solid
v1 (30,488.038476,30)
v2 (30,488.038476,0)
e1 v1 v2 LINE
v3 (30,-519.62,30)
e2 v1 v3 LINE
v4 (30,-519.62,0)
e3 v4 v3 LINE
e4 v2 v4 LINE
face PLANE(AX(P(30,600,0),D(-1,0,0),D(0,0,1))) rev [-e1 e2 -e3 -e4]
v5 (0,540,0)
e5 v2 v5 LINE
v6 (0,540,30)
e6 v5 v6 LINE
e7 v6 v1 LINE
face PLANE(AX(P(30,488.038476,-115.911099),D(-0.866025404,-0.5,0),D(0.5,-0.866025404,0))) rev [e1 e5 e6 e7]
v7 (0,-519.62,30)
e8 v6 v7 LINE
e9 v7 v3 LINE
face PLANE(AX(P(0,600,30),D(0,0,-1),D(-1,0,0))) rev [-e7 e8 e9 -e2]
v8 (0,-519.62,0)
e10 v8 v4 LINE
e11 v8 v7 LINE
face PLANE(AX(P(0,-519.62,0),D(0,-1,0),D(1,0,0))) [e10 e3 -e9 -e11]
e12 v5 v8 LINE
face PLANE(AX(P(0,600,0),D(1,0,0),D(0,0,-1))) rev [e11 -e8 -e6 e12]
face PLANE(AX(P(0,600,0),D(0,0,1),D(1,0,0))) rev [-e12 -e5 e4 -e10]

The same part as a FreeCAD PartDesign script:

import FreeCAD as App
import Part
import Sketcher

V = App.Vector
Q = App.Units.Quantity

doc = App.newDocument("Part")
params = doc.addObject("Spreadsheet::Sheet", "Params")
for row, (alias, value) in enumerate([
    ("sketch1_width", "30 mm"),
    ("pad1_length", "600 mm"),
    ("sketch2_width", "30 mm"),
    ("sketch3_width", "30 mm"),
    ("sketch4_width", "30 mm"),
    ("sketch4_height", "1119.62 mm"),
    ("pad2_length", "30 mm"),
    ("sketch5_height", "60 mm"),
    ("pocket3_length", "30 mm"),
], start=1):
    params.set(f"A{row}", alias)
    params.set(f"B{row}", "=" + value)
    params.setAlias(f"B{row}", alias)

body = doc.addObject("PartDesign::Body", "Body")

# Sketch on XZ plane
sketch1 = doc.addObject("Sketcher::SketchObject", "Sketch")
body.addObject(sketch1)
sketch1.AttachmentSupport = (doc.XZ_Plane, [""])
sketch1.MapMode = "FlatFace"
sketch1.addGeometry([
    Part.LineSegment(V(0, 0, 0), V(0, 30, 0)),
    Part.LineSegment(V(0, 30, 0), V(30, 30, 0)),
    Part.LineSegment(V(30, 30, 0), V(30, 0, 0)),
    Part.LineSegment(V(30, 0, 0), V(0, 0, 0)),
], False)
sketch1.addConstraint([
    Sketcher.Constraint("Coincident", 0, 2, 1, 1),
    Sketcher.Constraint("Coincident", 1, 2, 2, 1),
    Sketcher.Constraint("Coincident", 2, 2, 3, 1),
    Sketcher.Constraint("Coincident", 3, 2, 0, 1),
    Sketcher.Constraint("Vertical", 0),
    Sketcher.Constraint("Horizontal", 1),
    Sketcher.Constraint("Vertical", 2),
    Sketcher.Constraint("Horizontal", 3),
    Sketcher.Constraint("Coincident", 3, 2, -1, 1),
    Sketcher.Constraint("Equal", 3, 0),
    Sketcher.Constraint("DistanceX", 1, 1, 1, 2, 30.0),
])
sketch1.setExpression("Constraints[10]", "Params.sketch1_width")
pad1 = doc.addObject("PartDesign::Pad", "Pad")
body.addObject(pad1)
pad1.Profile = sketch1
pad1.setExpression("Length", "Params.pad1_length")
pad1.Reversed = True

# Sketch on XY plane
sketch2 = doc.addObject("Sketcher::SketchObject", "Sketch001")
body.addObject(sketch2)
sketch2.AttachmentSupport = (doc.XY_Plane, [""])
sketch2.MapMode = "FlatFace"
sketch2.AttachmentOffset = App.Placement(V(0, 0, 30), App.Rotation())
sketch2.addGeometry([
    Part.LineSegment(V(30, 8.038476, 0), V(0, 0, 0)),
    Part.LineSegment(V(0, 0, 0), V(30, 0, 0)),
    Part.LineSegment(V(30, 0, 0), V(30, 8.038476, 0)),
], False)
sketch2.addConstraint([
    Sketcher.Constraint("Coincident", 0, 2, 1, 1),
    Sketcher.Constraint("Coincident", 1, 2, 2, 1),
    Sketcher.Constraint("Coincident", 2, 2, 0, 1),
    Sketcher.Constraint("Horizontal", 1),
    Sketcher.Constraint("Vertical", 2),
    Sketcher.Constraint("Coincident", 0, 2, -1, 1),
    Sketcher.Constraint("DistanceX", 1, 1, 1, 2, 30.0),
    Sketcher.Constraint("Angle", 0, Q("-165 deg")),
])
sketch2.setExpression("Constraints[6]", "Params.sketch2_width")
pocket1 = doc.addObject("PartDesign::Pocket", "Pocket")
body.addObject(pocket1)
pocket1.Profile = sketch2
pocket1.Type = "UpToFirst"

# Sketch on XY plane
sketch3 = doc.addObject("Sketcher::SketchObject", "Sketch002")
body.addObject(sketch3)
sketch3.AttachmentSupport = (doc.XY_Plane, [""])
sketch3.MapMode = "FlatFace"
sketch3.addGeometry([
    Part.LineSegment(V(0, 600, 0), V(30, 600, 0)),
    Part.LineSegment(V(30, 600, 0), V(30, 488.038476, 0)),
    Part.LineSegment(V(30, 488.038476, 0), V(0, 600, 0)),
], False)
sketch3.addConstraint([
    Sketcher.Constraint("Coincident", 0, 2, 1, 1),
    Sketcher.Constraint("Coincident", 1, 2, 2, 1),
    Sketcher.Constraint("Coincident", 2, 2, 0, 1),
    Sketcher.Constraint("Horizontal", 0),
    Sketcher.Constraint("Vertical", 1),
    Sketcher.Constraint("PointOnObject", 2, 2, -2),
    Sketcher.Constraint("DistanceX", 0, 1, 0, 2, 30.0),
    Sketcher.Constraint("Angle", 2, Q("105 deg")),
    Sketcher.Constraint("DistanceY", -1, 1, 0, 2, 600.0),
])
sketch3.setExpression("Constraints[6]", "Params.sketch3_width")
pocket2 = doc.addObject("PartDesign::Pocket", "Pocket001")
body.addObject(pocket2)
pocket2.Profile = sketch3
pocket2.Type = "UpToFirst"
pocket2.Reversed = True

# Sketch on XY plane
sketch4 = doc.addObject("Sketcher::SketchObject", "Sketch003")
body.addObject(sketch4)
sketch4.AttachmentSupport = (doc.XY_Plane, [""])
sketch4.MapMode = "FlatFace"
sketch4.AttachmentOffset = App.Placement(V(0, 0, 30), App.Rotation())
sketch4.addGeometry([
    Part.LineSegment(V(0, 600, 0), V(0, -519.62, 0)),
    Part.LineSegment(V(0, -519.62, 0), V(30, -519.62, 0)),
    Part.LineSegment(V(30, -519.62, 0), V(30, 488.038476, 0)),
    Part.LineSegment(V(30, 488.038476, 0), V(0, 600, 0)),
], False)
sketch4.addConstraint([
    Sketcher.Constraint("Coincident", 0, 2, 1, 1),
    Sketcher.Constraint("Coincident", 1, 2, 2, 1),
    Sketcher.Constraint("Coincident", 2, 2, 3, 1),
    Sketcher.Constraint("Coincident", 3, 2, 0, 1),
    Sketcher.Constraint("Vertical", 0),
    Sketcher.Constraint("Horizontal", 1),
    Sketcher.Constraint("Vertical", 2),
    Sketcher.Constraint("PointOnObject", 0, 2, -2),
    Sketcher.Constraint("DistanceX", 1, 1, 1, 2, 30.0),
    Sketcher.Constraint("Angle", 3, Q("105 deg")),
    Sketcher.Constraint("DistanceY", -1, 1, 3, 2, 600.0),
    Sketcher.Constraint("DistanceY", 0, 2, 0, 1, 1119.62),
])
sketch4.setExpression("Constraints[8]", "Params.sketch4_width")
sketch4.setExpression("Constraints[11]", "Params.sketch4_height")
pad2 = doc.addObject("PartDesign::Pad", "Pad001")
body.addObject(pad2)
pad2.Profile = sketch4
pad2.setExpression("Length", "Params.pad2_length")
pad2.Reversed = True

# Sketch on XY plane
sketch5 = doc.addObject("Sketcher::SketchObject", "Sketch004")
body.addObject(sketch5)
sketch5.AttachmentSupport = (doc.XY_Plane, [""])
sketch5.MapMode = "FlatFace"
sketch5.AttachmentOffset = App.Placement(V(0, 0, 30), App.Rotation())
sketch5.addGeometry([
    Part.LineSegment(V(0, 600, 0), V(0, 540, 0)),
    Part.LineSegment(V(0, 540, 0), V(30, 488.038476, 0)),
    Part.LineSegment(V(30, 488.038476, 0), V(0, 600, 0)),
], False)
sketch5.addConstraint([
    Sketcher.Constraint("Coincident", 0, 2, 1, 1),
    Sketcher.Constraint("Coincident", 1, 2, 2, 1),
    Sketcher.Constraint("Coincident", 2, 2, 0, 1),
    Sketcher.Constraint("Vertical", 0),
    Sketcher.Constraint("PointOnObject", 0, 2, -2),
    Sketcher.Constraint("DistanceY", 0, 2, 0, 1, 60.0),
    Sketcher.Constraint("Angle", 1, Q("-60 deg")),
    Sketcher.Constraint("Angle", 2, Q("105 deg")),
    Sketcher.Constraint("DistanceY", -1, 1, 0, 2, 540.0),
])
sketch5.setExpression("Constraints[5]", "Params.sketch5_height")
pocket3 = doc.addObject("PartDesign::Pocket", "Pocket002")
body.addObject(pocket3)
pocket3.Profile = sketch5
pocket3.setExpression("Length", "Params.pocket3_length")

doc.recompute()
